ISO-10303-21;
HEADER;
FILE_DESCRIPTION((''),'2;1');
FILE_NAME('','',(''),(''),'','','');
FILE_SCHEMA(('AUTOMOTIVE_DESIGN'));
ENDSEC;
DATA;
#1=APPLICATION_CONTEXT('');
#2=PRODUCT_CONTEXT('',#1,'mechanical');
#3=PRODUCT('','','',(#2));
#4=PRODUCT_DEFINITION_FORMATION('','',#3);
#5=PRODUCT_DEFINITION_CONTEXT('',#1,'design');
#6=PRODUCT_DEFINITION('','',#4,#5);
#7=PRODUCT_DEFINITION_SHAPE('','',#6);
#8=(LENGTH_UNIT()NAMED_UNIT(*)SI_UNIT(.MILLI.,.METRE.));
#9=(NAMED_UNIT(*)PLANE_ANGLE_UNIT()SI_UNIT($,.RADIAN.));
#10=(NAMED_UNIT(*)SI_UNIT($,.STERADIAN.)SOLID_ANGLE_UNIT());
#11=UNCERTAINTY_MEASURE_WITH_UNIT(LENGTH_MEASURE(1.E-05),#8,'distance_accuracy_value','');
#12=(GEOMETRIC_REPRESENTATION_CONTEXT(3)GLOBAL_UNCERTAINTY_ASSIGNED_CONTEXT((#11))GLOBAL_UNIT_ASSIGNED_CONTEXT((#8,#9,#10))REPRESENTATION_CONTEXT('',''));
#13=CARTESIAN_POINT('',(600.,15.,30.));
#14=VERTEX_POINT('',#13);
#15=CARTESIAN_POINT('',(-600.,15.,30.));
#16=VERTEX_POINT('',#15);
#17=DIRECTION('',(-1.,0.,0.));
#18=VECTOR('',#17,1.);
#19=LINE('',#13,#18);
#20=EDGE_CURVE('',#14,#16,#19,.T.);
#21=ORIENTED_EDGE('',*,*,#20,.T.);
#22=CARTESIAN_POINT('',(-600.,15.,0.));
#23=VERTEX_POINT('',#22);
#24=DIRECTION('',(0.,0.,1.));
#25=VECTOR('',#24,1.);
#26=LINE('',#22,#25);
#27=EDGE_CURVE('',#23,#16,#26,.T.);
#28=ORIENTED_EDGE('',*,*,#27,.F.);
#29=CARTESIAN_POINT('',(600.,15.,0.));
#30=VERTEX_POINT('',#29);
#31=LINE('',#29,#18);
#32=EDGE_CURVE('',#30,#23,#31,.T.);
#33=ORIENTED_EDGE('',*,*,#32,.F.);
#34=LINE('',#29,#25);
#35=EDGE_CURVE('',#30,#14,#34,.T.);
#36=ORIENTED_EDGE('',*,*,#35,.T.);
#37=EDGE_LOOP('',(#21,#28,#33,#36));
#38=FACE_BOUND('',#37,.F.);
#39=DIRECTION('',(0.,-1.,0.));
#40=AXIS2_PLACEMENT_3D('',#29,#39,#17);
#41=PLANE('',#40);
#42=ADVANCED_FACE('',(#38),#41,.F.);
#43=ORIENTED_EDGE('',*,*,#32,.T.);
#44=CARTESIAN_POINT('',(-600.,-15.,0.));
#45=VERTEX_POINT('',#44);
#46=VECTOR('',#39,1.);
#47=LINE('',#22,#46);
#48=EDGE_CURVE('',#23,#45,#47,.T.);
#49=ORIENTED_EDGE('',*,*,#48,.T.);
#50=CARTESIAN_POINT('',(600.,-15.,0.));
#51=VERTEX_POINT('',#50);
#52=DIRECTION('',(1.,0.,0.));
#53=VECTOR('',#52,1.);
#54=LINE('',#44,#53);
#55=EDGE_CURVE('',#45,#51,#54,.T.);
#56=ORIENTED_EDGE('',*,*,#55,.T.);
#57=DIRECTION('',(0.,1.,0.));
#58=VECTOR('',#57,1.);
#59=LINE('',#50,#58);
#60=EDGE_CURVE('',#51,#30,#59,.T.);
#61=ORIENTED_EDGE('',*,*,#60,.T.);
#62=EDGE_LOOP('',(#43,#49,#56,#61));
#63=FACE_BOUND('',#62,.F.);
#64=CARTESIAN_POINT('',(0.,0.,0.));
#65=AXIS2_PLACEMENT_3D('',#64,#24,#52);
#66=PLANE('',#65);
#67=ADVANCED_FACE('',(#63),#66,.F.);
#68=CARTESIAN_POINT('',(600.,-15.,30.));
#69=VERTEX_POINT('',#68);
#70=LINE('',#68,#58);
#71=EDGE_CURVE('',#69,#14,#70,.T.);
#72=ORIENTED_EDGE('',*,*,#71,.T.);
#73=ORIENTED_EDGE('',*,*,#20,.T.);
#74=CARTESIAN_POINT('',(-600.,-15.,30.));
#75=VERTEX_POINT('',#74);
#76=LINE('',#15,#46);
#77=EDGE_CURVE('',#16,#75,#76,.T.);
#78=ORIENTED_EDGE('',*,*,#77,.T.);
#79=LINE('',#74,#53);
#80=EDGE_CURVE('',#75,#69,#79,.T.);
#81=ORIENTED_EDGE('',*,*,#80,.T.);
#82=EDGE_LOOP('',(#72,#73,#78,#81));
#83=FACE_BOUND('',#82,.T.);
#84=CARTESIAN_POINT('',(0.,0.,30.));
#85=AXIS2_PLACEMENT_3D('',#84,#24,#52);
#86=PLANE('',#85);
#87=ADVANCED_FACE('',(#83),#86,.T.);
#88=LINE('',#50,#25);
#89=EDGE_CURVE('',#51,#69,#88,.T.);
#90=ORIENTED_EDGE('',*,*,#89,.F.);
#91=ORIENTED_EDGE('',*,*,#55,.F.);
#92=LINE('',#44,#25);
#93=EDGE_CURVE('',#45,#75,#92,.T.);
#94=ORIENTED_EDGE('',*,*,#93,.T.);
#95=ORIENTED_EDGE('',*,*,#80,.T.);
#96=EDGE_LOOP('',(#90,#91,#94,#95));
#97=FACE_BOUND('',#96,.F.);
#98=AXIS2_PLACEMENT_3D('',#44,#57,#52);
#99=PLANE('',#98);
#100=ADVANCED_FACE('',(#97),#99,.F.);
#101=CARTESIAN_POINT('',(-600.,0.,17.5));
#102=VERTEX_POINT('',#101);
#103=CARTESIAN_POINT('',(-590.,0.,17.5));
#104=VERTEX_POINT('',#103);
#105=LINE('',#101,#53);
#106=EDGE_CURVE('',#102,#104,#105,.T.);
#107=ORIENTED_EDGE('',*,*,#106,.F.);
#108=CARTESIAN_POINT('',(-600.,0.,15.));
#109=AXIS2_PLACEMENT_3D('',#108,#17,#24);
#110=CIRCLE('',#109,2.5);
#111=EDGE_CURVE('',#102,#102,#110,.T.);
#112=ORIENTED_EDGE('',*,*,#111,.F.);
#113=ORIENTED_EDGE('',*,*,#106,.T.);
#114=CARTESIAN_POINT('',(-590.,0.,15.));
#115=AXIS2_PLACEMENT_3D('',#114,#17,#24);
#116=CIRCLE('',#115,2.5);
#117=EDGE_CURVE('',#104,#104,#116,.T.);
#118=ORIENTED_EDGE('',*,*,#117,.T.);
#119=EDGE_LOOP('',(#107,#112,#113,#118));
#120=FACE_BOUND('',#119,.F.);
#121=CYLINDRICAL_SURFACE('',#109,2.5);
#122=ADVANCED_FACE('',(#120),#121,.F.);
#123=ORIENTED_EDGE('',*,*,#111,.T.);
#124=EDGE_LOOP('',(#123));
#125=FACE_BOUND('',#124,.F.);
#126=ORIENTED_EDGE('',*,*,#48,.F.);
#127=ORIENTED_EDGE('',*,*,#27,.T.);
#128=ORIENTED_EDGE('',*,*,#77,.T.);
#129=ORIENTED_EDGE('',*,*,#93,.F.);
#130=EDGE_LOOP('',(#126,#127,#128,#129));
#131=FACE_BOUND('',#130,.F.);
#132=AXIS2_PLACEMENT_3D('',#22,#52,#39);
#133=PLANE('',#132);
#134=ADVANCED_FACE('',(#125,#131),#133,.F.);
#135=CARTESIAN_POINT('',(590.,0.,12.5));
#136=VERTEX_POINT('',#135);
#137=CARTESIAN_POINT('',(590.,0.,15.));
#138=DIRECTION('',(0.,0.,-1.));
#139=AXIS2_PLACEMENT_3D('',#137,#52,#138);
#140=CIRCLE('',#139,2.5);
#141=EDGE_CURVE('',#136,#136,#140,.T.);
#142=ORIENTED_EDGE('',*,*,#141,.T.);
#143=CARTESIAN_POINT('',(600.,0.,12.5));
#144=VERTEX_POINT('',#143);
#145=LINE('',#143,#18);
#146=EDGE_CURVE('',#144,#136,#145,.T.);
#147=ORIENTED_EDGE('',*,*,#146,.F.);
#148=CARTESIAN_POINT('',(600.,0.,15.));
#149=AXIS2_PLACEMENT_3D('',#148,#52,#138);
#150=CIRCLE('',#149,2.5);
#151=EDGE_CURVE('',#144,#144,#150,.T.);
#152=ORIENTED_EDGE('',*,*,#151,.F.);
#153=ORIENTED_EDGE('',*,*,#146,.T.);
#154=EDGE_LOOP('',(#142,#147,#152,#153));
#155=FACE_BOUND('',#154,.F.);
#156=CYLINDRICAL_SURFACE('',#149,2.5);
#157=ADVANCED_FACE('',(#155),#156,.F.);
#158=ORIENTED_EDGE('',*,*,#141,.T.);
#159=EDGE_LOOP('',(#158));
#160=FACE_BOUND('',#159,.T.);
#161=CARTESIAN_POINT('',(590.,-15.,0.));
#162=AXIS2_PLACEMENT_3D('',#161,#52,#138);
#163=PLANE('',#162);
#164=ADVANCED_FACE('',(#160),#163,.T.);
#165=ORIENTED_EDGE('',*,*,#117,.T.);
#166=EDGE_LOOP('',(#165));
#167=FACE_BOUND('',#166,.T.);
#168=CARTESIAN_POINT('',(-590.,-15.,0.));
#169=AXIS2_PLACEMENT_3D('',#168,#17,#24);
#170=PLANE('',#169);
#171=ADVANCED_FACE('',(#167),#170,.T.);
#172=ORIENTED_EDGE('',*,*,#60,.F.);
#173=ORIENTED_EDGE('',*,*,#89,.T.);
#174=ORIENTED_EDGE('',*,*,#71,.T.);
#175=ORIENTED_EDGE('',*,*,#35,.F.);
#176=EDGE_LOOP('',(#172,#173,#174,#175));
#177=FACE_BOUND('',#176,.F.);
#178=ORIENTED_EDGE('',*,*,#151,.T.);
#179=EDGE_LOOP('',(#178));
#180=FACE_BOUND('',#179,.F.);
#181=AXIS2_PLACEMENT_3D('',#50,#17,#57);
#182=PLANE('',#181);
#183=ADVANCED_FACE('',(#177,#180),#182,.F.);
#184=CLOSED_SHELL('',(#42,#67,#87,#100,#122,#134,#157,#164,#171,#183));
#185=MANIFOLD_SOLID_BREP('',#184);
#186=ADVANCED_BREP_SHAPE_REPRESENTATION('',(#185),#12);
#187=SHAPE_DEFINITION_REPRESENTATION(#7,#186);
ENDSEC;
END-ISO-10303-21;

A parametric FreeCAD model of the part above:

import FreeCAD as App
import Part
import Sketcher


def add_polygon(sketch, points):
    """Adds a closed chain of lines whose ends are joined by coincident constraints."""
    first, n = sketch.GeometryCount, len(points)
    for a, b in zip(points, points[1:] + points[:1]):
        sketch.addGeometry(Part.LineSegment(App.Vector(*a, 0), App.Vector(*b, 0)), False)
    for i in range(n):
        sketch.addConstraint(Sketcher.Constraint("Coincident", first + i, 2, first + (i + 1) % n, 1))

doc = App.newDocument("Part")
body = doc.addObject("PartDesign::Body", "Body")

sketch1 = body.newObject("Sketcher::SketchObject", "Sketch")
sketch1.AttachmentSupport = (doc.getObject("XY_Plane"), [""])
sketch1.MapMode = "FlatFace"
add_polygon(sketch1, [(-600, 15), (-600, -15), (600, -15), (600, 15)])
sketch1.addConstraint(Sketcher.Constraint("Vertical", 0))
sketch1.addConstraint(Sketcher.Constraint("Horizontal", 1))
sketch1.addConstraint(Sketcher.Constraint("Vertical", 2))
sketch1.addConstraint(Sketcher.Constraint("Horizontal", 3))
sketch1.addConstraint(Sketcher.Constraint("Symmetric", 0, 2, 2, 2, -1, 1))
sketch1.addConstraint(Sketcher.Constraint("DistanceX", 1, 1, 1, 2, 1200.0))
sketch1.addConstraint(Sketcher.Constraint("DistanceY", 0, 2, 0, 1, 30.0))
pad1 = body.newObject("PartDesign::Pad", "Pad")
pad1.Profile = sketch1
pad1.Length = 30

sketch2 = body.newObject("Sketcher::SketchObject", "Sketch001")
sketch2.AttachmentSupport = (doc.getObject("YZ_Plane"), [""])
sketch2.MapMode = "FlatFace"
sketch2.AttachmentOffset = App.Placement(App.Vector(0, 0, 600), App.Rotation())
sketch2.addGeometry(Part.Circle(App.Vector(0, 15, 0), App.Vector(0, 0, 1), 2.5), False)
sketch2.addConstraint(Sketcher.Constraint("PointOnObject", 0, 3, -2))
sketch2.addConstraint(Sketcher.Constraint("Diameter", 0, 5.0))
sketch2.addConstraint(Sketcher.Constraint("DistanceY", -1, 1, 0, 3, 15.0))
pocket1 = body.newObject("PartDesign::Pocket", "Pocket")
pocket1.Profile = sketch2
pocket1.Length = 10

sketch3 = body.newObject("Sketcher::SketchObject", "Sketch002")
sketch3.AttachmentSupport = (doc.getObject("YZ_Plane"), [""])
sketch3.MapMode = "FlatFace"
sketch3.AttachmentOffset = App.Placement(App.Vector(0, 0, -600), App.Rotation())
sketch3.addGeometry(Part.Circle(App.Vector(0, 15, 0), App.Vector(0, 0, 1), 2.5), False)
sketch3.addConstraint(Sketcher.Constraint("PointOnObject", 0, 3, -2))
sketch3.addConstraint(Sketcher.Constraint("Diameter", 0, 5.0))
sketch3.addConstraint(Sketcher.Constraint("DistanceY", -1, 1, 0, 3, 15.0))
pocket2 = body.newObject("PartDesign::Pocket", "Pocket001")
pocket2.Profile = sketch3
pocket2.Length = 10
pocket2.Reversed = True

doc.recompute()
